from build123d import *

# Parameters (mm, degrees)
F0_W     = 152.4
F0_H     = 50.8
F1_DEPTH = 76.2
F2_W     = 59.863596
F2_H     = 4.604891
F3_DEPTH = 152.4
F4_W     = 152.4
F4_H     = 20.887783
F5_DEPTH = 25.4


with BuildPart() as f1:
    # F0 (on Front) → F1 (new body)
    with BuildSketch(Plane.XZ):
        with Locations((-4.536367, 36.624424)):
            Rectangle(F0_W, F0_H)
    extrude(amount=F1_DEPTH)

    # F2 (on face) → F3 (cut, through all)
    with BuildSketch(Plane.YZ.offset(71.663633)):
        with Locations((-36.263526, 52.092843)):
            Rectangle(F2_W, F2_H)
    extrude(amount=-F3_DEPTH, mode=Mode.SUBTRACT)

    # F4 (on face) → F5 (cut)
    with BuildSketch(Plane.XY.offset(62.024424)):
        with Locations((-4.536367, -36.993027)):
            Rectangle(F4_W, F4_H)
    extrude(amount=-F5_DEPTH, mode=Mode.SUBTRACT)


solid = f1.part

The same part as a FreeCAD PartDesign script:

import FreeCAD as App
import Part
import Sketcher
from FreeCAD import Vector
Q = App.Units.Quantity


def add_polygon(sketch, points):
    """Adds a closed chain of lines whose ends are joined by coincident constraints."""
    first, n = sketch.GeometryCount, len(points)
    for a, b in zip(points, points[1:] + points[:1]):
        sketch.addGeometry(Part.LineSegment(App.Vector(*a, 0), App.Vector(*b, 0)), False)
    for i in range(n):
        sketch.addConstraint(Sketcher.Constraint("Coincident", first + i, 2, first + (i + 1) % n, 1))

doc = App.newDocument("Part")
body = doc.addObject("PartDesign::Body", "Body")

# Sketch on XZ plane
sketch1 = body.newObject("Sketcher::SketchObject", "Sketch")
sketch1.AttachmentSupport = (doc.getObject("XZ_Plane"), [""])
sketch1.MapMode = "FlatFace"
add_polygon(sketch1, [(-81, 62), (-81, 11), (72, 11), (72, 62)])  # lines 0-3
sketch1.addConstraint([
    Sketcher.Constraint("Vertical", 0),
    Sketcher.Constraint("Horizontal", 1),
    Sketcher.Constraint("Vertical", 2),
    Sketcher.Constraint("Horizontal", 3),
    Sketcher.Constraint("DistanceX", 1, 1, 1, 2, Q("6 in")),
    Sketcher.Constraint("DistanceY", 0, 2, 0, 1, Q("2 in")),
    Sketcher.Constraint("DistanceX", 0, 2, -1, 1, 80.736367),
    Sketcher.Constraint("DistanceY", -1, 1, 0, 2, 11.224424),
])
pad1 = body.newObject("PartDesign::Pad", "Pad")
pad1.Profile = sketch1
pad1.Length = Q("3 in")

# Sketch on YZ plane
sketch2 = body.newObject("Sketcher::SketchObject", "Sketch001")
sketch2.AttachmentSupport = (doc.getObject("YZ_Plane"), [""])
sketch2.MapMode = "FlatFace"
sketch2.AttachmentOffset = App.Placement(Vector(0, 0, 71.663633), App.Rotation())
add_polygon(sketch2, [(-66.2, 54.4), (-66.2, 49.8), (-6.3, 49.8), (-6.3, 54.4)])  # lines 0-3
sketch2.addConstraint([
    Sketcher.Constraint("Vertical", 0),
    Sketcher.Constraint("Horizontal", 1),
    Sketcher.Constraint("Vertical", 2),
    Sketcher.Constraint("Horizontal", 3),
    Sketcher.Constraint("DistanceY", 0, 2, 0, 1, 4.604891),
    Sketcher.Constraint("DistanceX", 1, 1, 1, 2, 59.863596),
    Sketcher.Constraint("DistanceY", -1, 1, 2, 2, 54.395288),
    Sketcher.Constraint("DistanceX", 0, 2, -1, 1, 66.195324),
])
pocket1 = body.newObject("PartDesign::Pocket", "Pocket")
pocket1.Profile = sketch2
pocket1.Type = "ThroughAll"

# Sketch on XY plane
sketch3 = body.newObject("Sketcher::SketchObject", "Sketch002")
sketch3.AttachmentSupport = (doc.getObject("XY_Plane"), [""])
sketch3.MapMode = "FlatFace"
sketch3.AttachmentOffset = App.Placement(Vector(0, 0, 62.024424), App.Rotation())
add_polygon(sketch3, [(-81, -27), (-81, -47), (72, -47), (72, -27)])  # lines 0-3
sketch3.addConstraint([
    Sketcher.Constraint("Vertical", 0),
    Sketcher.Constraint("Horizontal", 1),
    Sketcher.Constraint("Vertical", 2),
    Sketcher.Constraint("Horizontal", 3),
    Sketcher.Constraint("DistanceX", 1, 1, 1, 2, Q("6 in")),
    Sketcher.Constraint("DistanceY", 0, 2, 0, 1, 20.887783),
    Sketcher.Constraint("DistanceY", 0, 2, -1, 1, 47.436918),
    Sketcher.Constraint("DistanceX", 0, 2, -1, 1, 80.736367),
])
pocket2 = body.newObject("PartDesign::Pocket", "Pocket001")
pocket2.Profile = sketch3
pocket2.Length = Q("1 in")

doc.recompute()
